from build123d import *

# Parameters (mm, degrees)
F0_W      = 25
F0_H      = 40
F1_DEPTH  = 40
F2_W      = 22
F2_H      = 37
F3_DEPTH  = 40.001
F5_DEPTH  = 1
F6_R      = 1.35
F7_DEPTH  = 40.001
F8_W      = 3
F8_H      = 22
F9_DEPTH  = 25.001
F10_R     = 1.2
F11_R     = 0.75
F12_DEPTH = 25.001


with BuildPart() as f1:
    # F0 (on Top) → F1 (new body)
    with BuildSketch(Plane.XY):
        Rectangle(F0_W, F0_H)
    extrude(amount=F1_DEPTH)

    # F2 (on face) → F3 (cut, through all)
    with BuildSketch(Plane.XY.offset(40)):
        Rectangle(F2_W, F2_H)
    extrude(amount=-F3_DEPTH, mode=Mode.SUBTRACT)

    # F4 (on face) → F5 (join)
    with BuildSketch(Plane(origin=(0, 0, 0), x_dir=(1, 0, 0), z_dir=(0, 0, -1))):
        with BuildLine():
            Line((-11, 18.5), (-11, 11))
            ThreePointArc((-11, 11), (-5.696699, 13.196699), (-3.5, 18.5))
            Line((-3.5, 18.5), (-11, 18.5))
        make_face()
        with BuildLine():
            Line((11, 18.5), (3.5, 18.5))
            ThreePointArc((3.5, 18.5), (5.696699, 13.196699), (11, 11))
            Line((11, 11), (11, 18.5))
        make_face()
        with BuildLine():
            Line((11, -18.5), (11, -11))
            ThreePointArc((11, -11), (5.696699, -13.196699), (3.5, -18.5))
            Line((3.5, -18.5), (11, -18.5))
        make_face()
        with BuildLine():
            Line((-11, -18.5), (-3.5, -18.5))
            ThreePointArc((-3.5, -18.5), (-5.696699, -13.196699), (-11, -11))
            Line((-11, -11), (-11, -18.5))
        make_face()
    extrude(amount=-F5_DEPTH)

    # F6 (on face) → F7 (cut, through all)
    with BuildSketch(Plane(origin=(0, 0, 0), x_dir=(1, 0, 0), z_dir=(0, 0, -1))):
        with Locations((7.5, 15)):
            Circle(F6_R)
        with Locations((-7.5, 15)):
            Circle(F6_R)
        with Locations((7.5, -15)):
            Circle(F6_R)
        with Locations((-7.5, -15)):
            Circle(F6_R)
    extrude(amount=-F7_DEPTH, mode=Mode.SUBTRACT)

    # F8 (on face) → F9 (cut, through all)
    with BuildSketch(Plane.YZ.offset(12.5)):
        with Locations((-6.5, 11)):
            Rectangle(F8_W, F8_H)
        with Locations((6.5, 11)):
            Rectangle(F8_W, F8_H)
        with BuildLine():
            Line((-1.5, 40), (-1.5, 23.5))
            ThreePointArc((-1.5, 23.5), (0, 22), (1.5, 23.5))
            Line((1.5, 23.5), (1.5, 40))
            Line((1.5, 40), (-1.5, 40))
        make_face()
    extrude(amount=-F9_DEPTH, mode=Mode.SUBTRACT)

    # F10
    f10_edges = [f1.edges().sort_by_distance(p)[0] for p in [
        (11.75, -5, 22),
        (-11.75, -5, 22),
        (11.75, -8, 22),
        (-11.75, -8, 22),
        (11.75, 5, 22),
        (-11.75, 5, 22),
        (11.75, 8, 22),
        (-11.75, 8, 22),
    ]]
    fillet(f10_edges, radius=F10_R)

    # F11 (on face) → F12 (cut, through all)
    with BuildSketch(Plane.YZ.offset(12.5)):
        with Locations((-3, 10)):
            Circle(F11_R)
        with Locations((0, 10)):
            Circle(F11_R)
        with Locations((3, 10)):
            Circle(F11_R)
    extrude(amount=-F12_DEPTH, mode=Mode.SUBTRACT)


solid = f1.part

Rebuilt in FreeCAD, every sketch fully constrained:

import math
import FreeCAD as App
import Part
import Sketcher

V = App.Vector


def edges_at(feature, points):
    """Names of the edges that pass closest to the given points."""
    edges = feature.Shape.Edges
    near = lambda p: min(range(len(edges)), key=lambda i: edges[i].distToShape(Part.Vertex(*p))[0])
    return sorted({f"Edge{near(p) + 1}" for p in points})


def add_polygon(sketch, points):
    """Adds a closed chain of lines whose ends are joined by coincident constraints."""
    first, n = sketch.GeometryCount, len(points)
    for a, b in zip(points, points[1:] + points[:1]):
        sketch.addGeometry(Part.LineSegment(App.Vector(*a, 0), App.Vector(*b, 0)), False)
    for i in range(n):
        sketch.addConstraint(Sketcher.Constraint("Coincident", first + i, 2, first + (i + 1) % n, 1))

doc = App.newDocument("Part")
body = doc.addObject("PartDesign::Body", "Body")

# Sketch on XY plane
sketch1 = doc.addObject("Sketcher::SketchObject", "Sketch")
body.addObject(sketch1)
sketch1.AttachmentSupport = (doc.XY_Plane, [""])
sketch1.MapMode = "FlatFace"
add_polygon(sketch1, [(-12, 20), (-12, -20), (12, -20), (12, 20)])  # lines 0-3
sketch1.addConstraint(Sketcher.Constraint("Vertical", 0))
sketch1.addConstraint(Sketcher.Constraint("Horizontal", 1))
sketch1.addConstraint(Sketcher.Constraint("Vertical", 2))
sketch1.addConstraint(Sketcher.Constraint("Horizontal", 3))
sketch1.addConstraint(Sketcher.Constraint("Symmetric", 0, 2, 2, 2, -1, 1))
sketch1.addConstraint(Sketcher.Constraint("DistanceX", 1, 1, 1, 2, 25.0))
sketch1.addConstraint(Sketcher.Constraint("DistanceY", 0, 2, 0, 1, 40.0))
pad1 = doc.addObject("PartDesign::Pad", "Pad")
body.addObject(pad1)
pad1.Profile = sketch1
pad1.Length = 40

# Sketch on XY plane
sketch2 = doc.addObject("Sketcher::SketchObject", "Sketch001")
body.addObject(sketch2)
sketch2.AttachmentSupport = (doc.XY_Plane, [""])
sketch2.MapMode = "FlatFace"
sketch2.AttachmentOffset = App.Placement(V(0, 0, 40), App.Rotation())
add_polygon(sketch2, [(-11, 18), (-11, -18), (11, -18), (11, 18)])  # lines 0-3
sketch2.addConstraint(Sketcher.Constraint("Vertical", 0))
sketch2.addConstraint(Sketcher.Constraint("Horizontal", 1))
sketch2.addConstraint(Sketcher.Constraint("Vertical", 2))
sketch2.addConstraint(Sketcher.Constraint("Horizontal", 3))
sketch2.addConstraint(Sketcher.Constraint("Symmetric", 0, 2, 2, 2, -1, 1))
sketch2.addConstraint(Sketcher.Constraint("DistanceX", 1, 1, 1, 2, 22.0))
sketch2.addConstraint(Sketcher.Constraint("DistanceY", 0, 2, 0, 1, 37.0))
pocket1 = doc.addObject("PartDesign::Pocket", "Pocket")
body.addObject(pocket1)
pocket1.Profile = sketch2
pocket1.Type = "ThroughAll"

# Sketch on XY plane
sketch3 = doc.addObject("Sketcher::SketchObject", "Sketch002")
body.addObject(sketch3)
sketch3.AttachmentSupport = (doc.XY_Plane, [""])
sketch3.MapMode = "FlatFace"
sketch3.addGeometry(Part.LineSegment(V(-11, -18, 0), V(-11, -11, 0)), False)
sketch3.addGeometry(Part.ArcOfCircle(Part.Circle(V(-11, -18, 0), V(0, 0, 1), 7), math.radians(0), math.radians(90)), False)
sketch3.addGeometry(Part.LineSegment(V(-4, -18, 0), V(-11, -18, 0)), False)
sketch3.addGeometry(Part.LineSegment(V(11, -18, 0), V(4, -18, 0)), False)
sketch3.addGeometry(Part.ArcOfCircle(Part.Circle(V(11, -18, 0), V(0, 0, 1), 7), math.radians(90), math.radians(180)), False)
sketch3.addGeometry(Part.LineSegment(V(11, -11, 0), V(11, -18, 0)), False)
sketch3.addGeometry(Part.LineSegment(V(11, 18, 0), V(11, 11, 0)), False)
sketch3.addGeometry(Part.ArcOfCircle(Part.Circle(V(11, 18, 0), V(0, 0, 1), 7), math.radians(180), math.radians(270)), False)
sketch3.addGeometry(Part.LineSegment(V(4, 18, 0), V(11, 18, 0)), False)
sketch3.addGeometry(Part.LineSegment(V(-11, 18, 0), V(-4, 18, 0)), False)
sketch3.addGeometry(Part.ArcOfCircle(Part.Circle(V(-11, 18, 0), V(0, 0, 1), 7), math.radians(-90), math.radians(0)), False)
sketch3.addGeometry(Part.LineSegment(V(-11, 11, 0), V(-11, 18, 0)), False)
sketch3.addConstraint(Sketcher.Constraint("Coincident", 0, 2, 1, 2))
sketch3.addConstraint(Sketcher.Constraint("Coincident", 1, 1, 2, 1))
sketch3.addConstraint(Sketcher.Constraint("Coincident", 2, 2, 0, 1))
sketch3.addConstraint(Sketcher.Constraint("Coincident", 3, 2, 4, 2))
sketch3.addConstraint(Sketcher.Constraint("Coincident", 4, 1, 5, 1))
sketch3.addConstraint(Sketcher.Constraint("Coincident", 5, 2, 3, 1))
sketch3.addConstraint(Sketcher.Constraint("Coincident", 6, 2, 7, 2))
sketch3.addConstraint(Sketcher.Constraint("Coincident", 7, 1, 8, 1))
sketch3.addConstraint(Sketcher.Constraint("Coincident", 8, 2, 6, 1))
sketch3.addConstraint(Sketcher.Constraint("Coincident", 9, 2, 10, 2))
sketch3.addConstraint(Sketcher.Constraint("Coincident", 10, 1, 11, 1))
sketch3.addConstraint(Sketcher.Constraint("Coincident", 11, 2, 9, 1))
sketch3.addConstraint(Sketcher.Constraint("Vertical", 0))
sketch3.addConstraint(Sketcher.Constraint("Horizontal", 2))
sketch3.addConstraint(Sketcher.Constraint("Horizontal", 3))
sketch3.addConstraint(Sketcher.Constraint("Vertical", 5))
sketch3.addConstraint(Sketcher.Constraint("Vertical", 6))
sketch3.addConstraint(Sketcher.Constraint("Horizontal", 8))
sketch3.addConstraint(Sketcher.Constraint("Horizontal", 9))
sketch3.addConstraint(Sketcher.Constraint("Vertical", 11))
sketch3.addConstraint(Sketcher.Constraint("Coincident", 2, 2, 1, 3))
sketch3.addConstraint(Sketcher.Constraint("Coincident", 5, 2, 4, 3))
sketch3.addConstraint(Sketcher.Constraint("Coincident", 8, 2, 7, 3))
sketch3.addConstraint(Sketcher.Constraint("Coincident", 11, 2, 10, 3))
sketch3.addConstraint(Sketcher.Constraint("Equal", 1, 4))
sketch3.addConstraint(Sketcher.Constraint("Equal", 4, 7))
sketch3.addConstraint(Sketcher.Constraint("Equal", 7, 10))
sketch3.addConstraint(Sketcher.Constraint("Symmetric", 1, 3, 7, 3, -1, 1))
sketch3.addConstraint(Sketcher.Constraint("Symmetric", 4, 3, 10, 3, -1, 1))
sketch3.addConstraint(Sketcher.Constraint("Symmetric", 1, 3, 4, 3, -2))
sketch3.addConstraint(Sketcher.Constraint("Radius", 1, 7.5))
sketch3.addConstraint(Sketcher.Constraint("DistanceX", 1, 3, -1, 1, 11.0))
sketch3.addConstraint(Sketcher.Constraint("DistanceY", 0, 2, -1, 1, 11.0))
pad2 = doc.addObject("PartDesign::Pad", "Pad001")
body.addObject(pad2)
pad2.Profile = sketch3
pad2.Length = 1

# Sketch on XY plane
sketch4 = doc.addObject("Sketcher::SketchObject", "Sketch003")
body.addObject(sketch4)
sketch4.AttachmentSupport = (doc.XY_Plane, [""])
sketch4.MapMode = "FlatFace"
sketch4.addGeometry(Part.Circle(V(7.5, -15, 0), V(0, 0, 1), 1.4), False)
sketch4.addGeometry(Part.Circle(V(-7.5, -15, 0), V(0, 0, 1), 1.4), False)
sketch4.addGeometry(Part.Circle(V(7.5, 15, 0), V(0, 0, 1), 1.4), False)
sketch4.addGeometry(Part.Circle(V(-7.5, 15, 0), V(0, 0, 1), 1.4), False)
sketch4.addConstraint(Sketcher.Constraint("Equal", 0, 1))
sketch4.addConstraint(Sketcher.Constraint("Equal", 1, 2))
sketch4.addConstraint(Sketcher.Constraint("Equal", 2, 3))
sketch4.addConstraint(Sketcher.Constraint("Symmetric", 1, 3, 2, 3, -1, 1))
sketch4.addConstraint(Sketcher.Constraint("Symmetric", 0, 3, 3, 3, -1, 1))
sketch4.addConstraint(Sketcher.Constraint("Symmetric", 0, 3, 1, 3, -2))
sketch4.addConstraint(Sketcher.Constraint("Diameter", 0, 2.7))
sketch4.addConstraint(Sketcher.Constraint("DistanceY", 0, 3, -1, 1, 15.0))
sketch4.addConstraint(Sketcher.Constraint("DistanceX", 1, 3, 0, 3, 15.0))
pocket2 = doc.addObject("PartDesign::Pocket", "Pocket001")
body.addObject(pocket2)
pocket2.Profile = sketch4
pocket2.Type = "ThroughAll"
pocket2.Reversed = True

# Sketch on YZ plane
sketch5 = doc.addObject("Sketcher::SketchObject", "Sketch004")
body.addObject(sketch5)
sketch5.AttachmentSupport = (doc.YZ_Plane, [""])
sketch5.MapMode = "FlatFace"
sketch5.AttachmentOffset = App.Placement(V(0, 0, 12.5), App.Rotation())
add_polygon(sketch5, [(-8, 22), (-8, 0), (-5, 0), (-5, 22)])  # lines 0-3
add_polygon(sketch5, [(5, 22), (5, 0), (8, 0), (8, 22)])  # lines 4-7
sketch5.addGeometry(Part.LineSegment(V(-1.5, 40, 0), V(-1.5, 23.5, 0)), False)  # 8
sketch5.addGeometry(Part.ArcOfCircle(Part.Circle(V(0, 23.5, 0), V(0, 0, 1), 1.5), math.radians(180), math.radians(360)), False)  # 9
sketch5.addGeometry(Part.LineSegment(V(1.5, 23.5, 0), V(1.5, 40, 0)), False)  # 10
sketch5.addGeometry(Part.LineSegment(V(1.5, 40, 0), V(-1.5, 40, 0)), False)  # 11
sketch5.addConstraint(Sketcher.Constraint("Tangent", 8, 2, 9, 1))
sketch5.addConstraint(Sketcher.Constraint("Tangent", 9, 2, 10, 1))
sketch5.addConstraint(Sketcher.Constraint("Coincident", 10, 2, 11, 1))
sketch5.addConstraint(Sketcher.Constraint("Coincident", 11, 2, 8, 1))
sketch5.addConstraint(Sketcher.Constraint("Vertical", 0))
sketch5.addConstraint(Sketcher.Constraint("Horizontal", 1))
sketch5.addConstraint(Sketcher.Constraint("Vertical", 2))
sketch5.addConstraint(Sketcher.Constraint("Horizontal", 3))
sketch5.addConstraint(Sketcher.Constraint("Vertical", 4))
sketch5.addConstraint(Sketcher.Constraint("Horizontal", 5))
sketch5.addConstraint(Sketcher.Constraint("Vertical", 6))
sketch5.addConstraint(Sketcher.Constraint("Horizontal", 7))
sketch5.addConstraint(Sketcher.Constraint("Vertical", 8))
sketch5.addConstraint(Sketcher.Constraint("Vertical", 10))
sketch5.addConstraint(Sketcher.Constraint("Horizontal", 11))
sketch5.addConstraint(Sketcher.Constraint("Symmetric", 1, 2, 4, 2, -1, 1))
sketch5.addConstraint(Sketcher.Constraint("Symmetric", 0, 2, 5, 2, -2))
sketch5.addConstraint(Sketcher.Constraint("PointOnObject", 9, 3, -2))
sketch5.addConstraint(Sketcher.Constraint("Horizontal", 3, 2, 6, 2))
sketch5.addConstraint(Sketcher.Constraint("Equal", 7, 11))
sketch5.addConstraint(Sketcher.Constraint("Radius", 9, 1.5))
sketch5.addConstraint(Sketcher.Constraint("DistanceY", 0, 2, 0, 1, 22.0))
sketch5.addConstraint(Sketcher.Constraint("DistanceY", 8, 2, 8, 1, 16.5))
sketch5.addConstraint(Sketcher.Constraint("DistanceX", 0, 2, -1, 1, 8.0))
sketch5.addConstraint(Sketcher.Constraint("DistanceY", -1, 1, 10, 2, 40.0))
pocket3 = doc.addObject("PartDesign::Pocket", "Pocket002")
body.addObject(pocket3)
pocket3.Profile = sketch5
pocket3.Type = "ThroughAll"
doc.recompute()

fillet = doc.addObject("PartDesign::Fillet", "Fillet")
body.addObject(fillet)
fillet.Base = (pocket3, edges_at(pocket3, [
    (11.75, -5, 22),
    (-11.75, -5, 22),
    (11.75, -8, 22),
    (-11.75, -8, 22),
    (11.75, 5, 22),
    (-11.75, 5, 22),
    (11.75, 8, 22),
    (-11.75, 8, 22),
]))
fillet.Radius = 1.2

# Sketch on YZ plane
sketch6 = doc.addObject("Sketcher::SketchObject", "Sketch005")
body.addObject(sketch6)
sketch6.AttachmentSupport = (doc.YZ_Plane, [""])
sketch6.MapMode = "FlatFace"
sketch6.AttachmentOffset = App.Placement(V(0, 0, 12.5), App.Rotation())
sketch6.addGeometry(Part.Circle(V(-3, 10, 0), V(0, 0, 1), 0.8), False)
sketch6.addGeometry(Part.Circle(V(0, 10, 0), V(0, 0, 1), 0.8), False)
sketch6.addGeometry(Part.Circle(V(3, 10, 0), V(0, 0, 1), 0.8), False)
sketch6.addConstraint(Sketcher.Constraint("Equal", 0, 1))
sketch6.addConstraint(Sketcher.Constraint("Equal", 1, 2))
sketch6.addConstraint(Sketcher.Constraint("Symmetric", 0, 3, 2, 3, -2))
sketch6.addConstraint(Sketcher.Constraint("PointOnObject", 1, 3, -2))
sketch6.addConstraint(Sketcher.Constraint("Horizontal", 0, 3, 1, 3))
sketch6.addConstraint(Sketcher.Constraint("Diameter", 0, 1.5))
sketch6.addConstraint(Sketcher.Constraint("DistanceX", 0, 3, -1, 1, 3.0))
sketch6.addConstraint(Sketcher.Constraint("DistanceY", -1, 1, 0, 3, 10.0))
pocket4 = doc.addObject("PartDesign::Pocket", "Pocket003")
body.addObject(pocket4)
pocket4.Profile = sketch6
pocket4.Type = "ThroughAll"

doc.recompute()
